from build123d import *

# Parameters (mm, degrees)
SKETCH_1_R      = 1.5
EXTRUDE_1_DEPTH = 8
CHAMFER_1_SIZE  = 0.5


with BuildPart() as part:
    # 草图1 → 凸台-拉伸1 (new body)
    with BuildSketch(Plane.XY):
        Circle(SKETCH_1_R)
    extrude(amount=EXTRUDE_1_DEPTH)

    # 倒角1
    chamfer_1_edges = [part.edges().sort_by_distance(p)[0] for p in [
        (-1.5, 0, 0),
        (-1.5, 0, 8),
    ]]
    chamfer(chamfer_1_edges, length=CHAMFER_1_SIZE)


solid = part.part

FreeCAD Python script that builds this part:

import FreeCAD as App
import Part
import Sketcher
from FreeCAD import Vector
Q = App.Units.Quantity


def edges_at(feature, points):
    """Names of the edges that pass closest to the given points."""
    edges = feature.Shape.Edges
    near = lambda p: min(range(len(edges)), key=lambda i: edges[i].distToShape(Part.Vertex(*p))[0])
    return sorted({f"Edge{near(p) + 1}" for p in points})

doc = App.newDocument("Part")
params = doc.addObject("Spreadsheet::Sheet", "Params")
for row, (alias, value) in enumerate([
    ("sketch1_diameter", "3 mm"),
    ("pad1_length", "8 mm"),
    ("chamfer_size", "0.5 mm"),
], start=1):
    params.set(f"A{row}", alias)
    params.set(f"B{row}", "=" + value)
    params.setAlias(f"B{row}", alias)

body = doc.addObject("PartDesign::Body", "Body")

sketch1 = body.newObject("Sketcher::SketchObject", "Sketch")
sketch1.AttachmentSupport = (doc.getObject("XY_Plane"), [""])
sketch1.MapMode = "FlatFace"
sketch1.addGeometry(Part.Circle(Vector(0, 0, 0), Vector(0, 0, 1), 1.5), False)
sketch1.addConstraint([
    Sketcher.Constraint("Coincident", 0, 3, -1, 1),
    Sketcher.Constraint("Diameter", 0, Q("3 mm")),
])
sketch1.setExpression("Constraints[1]", "Params.sketch1_diameter")
pad1 = body.newObject("PartDesign::Pad", "Pad")
pad1.Profile = sketch1
pad1.setExpression("Length", "Params.pad1_length")
doc.recompute()

chamfer = body.newObject("PartDesign::Chamfer", "Chamfer")
chamfer.Base = (pad1, edges_at(pad1, [(-1.5, 0, 0), (-1.5, 0, 8)]))
chamfer.setExpression("Size", "Params.chamfer_size")

doc.recompute()
